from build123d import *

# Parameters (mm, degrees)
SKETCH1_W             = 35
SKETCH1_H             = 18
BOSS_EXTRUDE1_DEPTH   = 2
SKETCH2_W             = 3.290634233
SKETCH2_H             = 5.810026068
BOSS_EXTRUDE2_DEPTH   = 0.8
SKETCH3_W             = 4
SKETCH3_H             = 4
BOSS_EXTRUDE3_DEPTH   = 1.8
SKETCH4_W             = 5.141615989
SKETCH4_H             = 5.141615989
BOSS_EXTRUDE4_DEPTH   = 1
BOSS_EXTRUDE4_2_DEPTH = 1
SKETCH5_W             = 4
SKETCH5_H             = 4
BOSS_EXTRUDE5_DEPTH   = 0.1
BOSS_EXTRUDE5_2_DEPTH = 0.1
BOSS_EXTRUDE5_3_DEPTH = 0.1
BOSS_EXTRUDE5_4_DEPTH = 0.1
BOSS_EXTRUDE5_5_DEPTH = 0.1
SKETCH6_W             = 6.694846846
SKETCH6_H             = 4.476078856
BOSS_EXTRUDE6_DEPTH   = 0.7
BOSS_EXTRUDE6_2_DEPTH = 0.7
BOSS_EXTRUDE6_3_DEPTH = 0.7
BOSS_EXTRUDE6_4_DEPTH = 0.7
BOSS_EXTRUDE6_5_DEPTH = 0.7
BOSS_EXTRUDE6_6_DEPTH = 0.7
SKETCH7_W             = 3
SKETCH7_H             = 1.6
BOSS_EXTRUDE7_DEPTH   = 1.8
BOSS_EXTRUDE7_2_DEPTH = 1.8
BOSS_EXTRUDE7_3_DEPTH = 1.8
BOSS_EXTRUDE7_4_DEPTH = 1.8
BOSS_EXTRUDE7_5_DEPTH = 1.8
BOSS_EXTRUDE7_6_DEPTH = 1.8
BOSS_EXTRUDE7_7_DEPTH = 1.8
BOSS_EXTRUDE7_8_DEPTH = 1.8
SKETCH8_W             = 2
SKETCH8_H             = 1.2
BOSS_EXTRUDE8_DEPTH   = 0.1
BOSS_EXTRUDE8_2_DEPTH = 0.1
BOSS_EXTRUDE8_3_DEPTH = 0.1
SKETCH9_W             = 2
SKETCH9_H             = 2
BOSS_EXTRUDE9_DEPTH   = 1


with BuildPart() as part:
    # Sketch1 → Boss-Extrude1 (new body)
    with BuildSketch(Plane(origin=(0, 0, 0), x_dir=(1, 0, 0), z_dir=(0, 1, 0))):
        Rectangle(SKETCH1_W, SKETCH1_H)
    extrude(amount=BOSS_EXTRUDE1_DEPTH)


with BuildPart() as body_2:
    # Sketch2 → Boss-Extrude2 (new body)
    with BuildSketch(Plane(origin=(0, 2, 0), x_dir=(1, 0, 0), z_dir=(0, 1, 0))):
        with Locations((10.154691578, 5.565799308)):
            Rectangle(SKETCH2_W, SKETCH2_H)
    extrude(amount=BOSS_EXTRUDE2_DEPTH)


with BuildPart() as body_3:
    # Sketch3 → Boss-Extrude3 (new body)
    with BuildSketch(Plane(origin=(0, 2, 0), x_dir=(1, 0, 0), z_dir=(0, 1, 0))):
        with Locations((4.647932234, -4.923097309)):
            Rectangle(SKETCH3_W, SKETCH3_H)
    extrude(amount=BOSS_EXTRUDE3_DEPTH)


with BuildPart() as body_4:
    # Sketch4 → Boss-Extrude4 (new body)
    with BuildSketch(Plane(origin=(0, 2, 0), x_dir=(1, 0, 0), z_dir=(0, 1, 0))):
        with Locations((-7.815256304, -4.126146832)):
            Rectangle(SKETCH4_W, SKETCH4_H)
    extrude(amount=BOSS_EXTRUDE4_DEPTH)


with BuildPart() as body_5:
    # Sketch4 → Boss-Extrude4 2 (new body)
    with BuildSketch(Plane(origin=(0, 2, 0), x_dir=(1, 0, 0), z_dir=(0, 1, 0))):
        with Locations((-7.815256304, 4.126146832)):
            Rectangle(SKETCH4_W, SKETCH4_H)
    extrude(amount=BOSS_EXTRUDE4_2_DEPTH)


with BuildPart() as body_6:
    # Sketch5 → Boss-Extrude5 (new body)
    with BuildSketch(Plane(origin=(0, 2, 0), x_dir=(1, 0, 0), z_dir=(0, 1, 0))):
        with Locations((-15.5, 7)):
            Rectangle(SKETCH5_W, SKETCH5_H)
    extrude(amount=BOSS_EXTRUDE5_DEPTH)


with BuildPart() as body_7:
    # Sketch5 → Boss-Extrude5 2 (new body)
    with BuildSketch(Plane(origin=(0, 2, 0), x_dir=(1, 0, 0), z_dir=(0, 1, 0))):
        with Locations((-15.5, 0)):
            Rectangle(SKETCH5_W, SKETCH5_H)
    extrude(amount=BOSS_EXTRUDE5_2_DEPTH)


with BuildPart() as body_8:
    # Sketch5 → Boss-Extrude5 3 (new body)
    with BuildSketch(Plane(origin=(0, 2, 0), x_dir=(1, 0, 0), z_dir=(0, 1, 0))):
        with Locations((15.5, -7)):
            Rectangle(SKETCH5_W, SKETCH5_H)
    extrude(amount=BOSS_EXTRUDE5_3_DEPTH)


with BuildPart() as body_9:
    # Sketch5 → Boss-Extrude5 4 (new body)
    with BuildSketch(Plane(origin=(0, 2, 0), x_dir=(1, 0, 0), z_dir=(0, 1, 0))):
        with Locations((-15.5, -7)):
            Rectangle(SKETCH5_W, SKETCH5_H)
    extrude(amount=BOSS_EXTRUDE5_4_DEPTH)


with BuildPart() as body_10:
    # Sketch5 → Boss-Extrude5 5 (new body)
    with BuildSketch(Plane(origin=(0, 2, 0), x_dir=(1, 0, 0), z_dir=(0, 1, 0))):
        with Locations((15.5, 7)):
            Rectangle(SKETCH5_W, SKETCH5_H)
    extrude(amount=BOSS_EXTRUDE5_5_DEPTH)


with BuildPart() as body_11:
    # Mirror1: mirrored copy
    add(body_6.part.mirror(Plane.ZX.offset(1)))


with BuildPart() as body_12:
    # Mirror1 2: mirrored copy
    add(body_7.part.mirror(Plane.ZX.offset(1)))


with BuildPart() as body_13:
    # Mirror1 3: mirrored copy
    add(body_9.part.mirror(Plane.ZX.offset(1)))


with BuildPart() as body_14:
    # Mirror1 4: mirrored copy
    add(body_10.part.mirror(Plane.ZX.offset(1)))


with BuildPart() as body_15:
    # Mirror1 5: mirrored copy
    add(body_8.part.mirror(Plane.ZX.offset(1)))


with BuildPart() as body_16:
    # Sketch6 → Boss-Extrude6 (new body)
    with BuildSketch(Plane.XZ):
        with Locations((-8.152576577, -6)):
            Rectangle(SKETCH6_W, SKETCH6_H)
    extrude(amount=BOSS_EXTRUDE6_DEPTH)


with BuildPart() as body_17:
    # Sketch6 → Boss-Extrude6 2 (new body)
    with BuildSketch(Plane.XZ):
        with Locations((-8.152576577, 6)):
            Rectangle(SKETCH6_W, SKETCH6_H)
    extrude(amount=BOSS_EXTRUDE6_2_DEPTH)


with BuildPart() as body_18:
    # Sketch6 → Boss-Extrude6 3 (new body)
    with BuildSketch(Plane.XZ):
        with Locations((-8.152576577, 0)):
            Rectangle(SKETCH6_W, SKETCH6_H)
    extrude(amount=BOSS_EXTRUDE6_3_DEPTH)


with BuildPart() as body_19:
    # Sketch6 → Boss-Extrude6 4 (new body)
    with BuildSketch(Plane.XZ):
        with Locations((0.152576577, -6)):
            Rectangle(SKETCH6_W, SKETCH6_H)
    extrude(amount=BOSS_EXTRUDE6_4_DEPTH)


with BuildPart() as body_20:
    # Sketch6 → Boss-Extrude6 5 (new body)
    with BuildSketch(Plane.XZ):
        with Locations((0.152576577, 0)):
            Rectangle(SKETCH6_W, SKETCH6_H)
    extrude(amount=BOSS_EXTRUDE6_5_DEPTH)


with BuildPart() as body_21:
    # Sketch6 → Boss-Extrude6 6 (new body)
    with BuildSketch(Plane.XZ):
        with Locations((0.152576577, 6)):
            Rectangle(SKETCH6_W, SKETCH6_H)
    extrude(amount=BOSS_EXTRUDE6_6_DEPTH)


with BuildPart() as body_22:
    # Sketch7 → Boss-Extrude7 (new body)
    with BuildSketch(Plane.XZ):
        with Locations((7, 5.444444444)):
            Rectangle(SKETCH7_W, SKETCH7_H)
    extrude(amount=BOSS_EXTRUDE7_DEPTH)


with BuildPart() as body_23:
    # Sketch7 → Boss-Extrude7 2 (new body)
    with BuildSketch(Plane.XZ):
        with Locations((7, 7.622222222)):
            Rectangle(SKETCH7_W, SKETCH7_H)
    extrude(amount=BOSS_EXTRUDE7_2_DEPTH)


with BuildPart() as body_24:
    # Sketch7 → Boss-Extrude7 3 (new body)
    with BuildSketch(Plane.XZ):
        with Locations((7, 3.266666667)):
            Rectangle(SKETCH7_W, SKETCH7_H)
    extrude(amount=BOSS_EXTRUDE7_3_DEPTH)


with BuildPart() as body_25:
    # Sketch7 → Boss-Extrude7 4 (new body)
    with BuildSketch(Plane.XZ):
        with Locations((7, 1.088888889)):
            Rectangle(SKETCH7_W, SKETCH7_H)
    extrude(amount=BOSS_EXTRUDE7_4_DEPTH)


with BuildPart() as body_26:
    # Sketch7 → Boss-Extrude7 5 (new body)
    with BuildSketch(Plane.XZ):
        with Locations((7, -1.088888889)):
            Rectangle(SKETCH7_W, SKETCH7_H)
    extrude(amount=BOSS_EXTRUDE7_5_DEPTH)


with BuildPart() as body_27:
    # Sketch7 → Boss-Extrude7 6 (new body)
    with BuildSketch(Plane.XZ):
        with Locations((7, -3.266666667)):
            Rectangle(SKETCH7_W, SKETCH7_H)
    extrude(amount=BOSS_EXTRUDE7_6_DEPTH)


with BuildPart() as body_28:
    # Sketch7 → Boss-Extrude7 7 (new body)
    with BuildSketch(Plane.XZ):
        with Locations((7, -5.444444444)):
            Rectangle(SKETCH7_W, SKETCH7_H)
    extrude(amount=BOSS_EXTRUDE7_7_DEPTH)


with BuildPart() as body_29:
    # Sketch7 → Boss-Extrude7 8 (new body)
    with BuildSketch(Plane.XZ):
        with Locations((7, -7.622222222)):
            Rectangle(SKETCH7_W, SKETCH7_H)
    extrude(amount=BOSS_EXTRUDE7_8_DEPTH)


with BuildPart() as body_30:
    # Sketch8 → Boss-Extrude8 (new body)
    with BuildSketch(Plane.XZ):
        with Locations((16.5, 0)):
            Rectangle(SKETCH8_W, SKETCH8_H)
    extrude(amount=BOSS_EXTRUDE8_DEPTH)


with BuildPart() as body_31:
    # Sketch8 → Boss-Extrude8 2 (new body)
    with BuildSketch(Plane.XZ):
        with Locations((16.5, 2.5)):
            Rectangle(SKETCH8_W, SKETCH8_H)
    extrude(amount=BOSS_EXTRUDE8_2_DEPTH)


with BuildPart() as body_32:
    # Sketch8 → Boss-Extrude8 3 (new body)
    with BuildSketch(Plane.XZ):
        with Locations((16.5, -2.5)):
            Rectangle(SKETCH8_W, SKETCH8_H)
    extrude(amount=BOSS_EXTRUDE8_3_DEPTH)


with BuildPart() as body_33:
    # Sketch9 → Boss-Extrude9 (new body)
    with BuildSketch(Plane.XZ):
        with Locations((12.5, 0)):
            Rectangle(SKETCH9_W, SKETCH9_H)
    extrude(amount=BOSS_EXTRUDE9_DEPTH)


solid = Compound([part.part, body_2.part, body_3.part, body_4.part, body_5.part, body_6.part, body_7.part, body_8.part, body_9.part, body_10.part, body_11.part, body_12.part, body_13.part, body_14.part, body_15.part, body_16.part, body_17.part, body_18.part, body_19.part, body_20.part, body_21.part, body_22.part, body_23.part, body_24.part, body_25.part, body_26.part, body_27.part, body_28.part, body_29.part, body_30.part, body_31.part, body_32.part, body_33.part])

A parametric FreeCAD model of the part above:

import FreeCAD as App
import Part
import Sketcher

V = App.Vector

doc = App.newDocument("Part")
body = doc.addObject("PartDesign::Body", "Body")

sketch1 = body.newObject("Sketcher::SketchObject", "Sketch")
sketch1.AttachmentSupport = (doc.getObject("XZ_Plane"), [""])
sketch1.MapMode = "FlatFace"
sketch1.addGeometry(Part.LineSegment(V(-17.5, -9, 0), V(-17.5, 9, 0)), False)
sketch1.addGeometry(Part.LineSegment(V(-17.5, 9, 0), V(17.5, 9, 0)), False)
sketch1.addGeometry(Part.LineSegment(V(17.5, 9, 0), V(17.5, -9, 0)), False)
sketch1.addGeometry(Part.LineSegment(V(17.5, -9, 0), V(-17.5, -9, 0)), False)
sketch1.addConstraint(Sketcher.Constraint("Coincident", 0, 2, 1, 1))
sketch1.addConstraint(Sketcher.Constraint("Coincident", 1, 2, 2, 1))
sketch1.addConstraint(Sketcher.Constraint("Coincident", 2, 2, 3, 1))
sketch1.addConstraint(Sketcher.Constraint("Coincident", 3, 2, 0, 1))
sketch1.addConstraint(Sketcher.Constraint("Vertical", 0))
sketch1.addConstraint(Sketcher.Constraint("Horizontal", 1))
sketch1.addConstraint(Sketcher.Constraint("Vertical", 2))
sketch1.addConstraint(Sketcher.Constraint("Horizontal", 3))
sketch1.addConstraint(Sketcher.Constraint("Symmetric", 0, 2, 2, 2, -1, 1))
sketch1.addConstraint(Sketcher.Constraint("DistanceX", 1, 1, 1, 2, 35.0))
sketch1.addConstraint(Sketcher.Constraint("DistanceY", 0, 1, 0, 2, 18.0))
pad1 = body.newObject("PartDesign::Pad", "Pad")
pad1.Profile = sketch1
pad1.Length = 2
pad1.Reversed = True
body2 = doc.addObject("PartDesign::Body", "Body001")

sketch2 = body2.newObject("Sketcher::SketchObject", "Sketch001")
sketch2.AttachmentSupport = (doc.getObject("XZ_Plane001"), [""])
sketch2.MapMode = "FlatFace"
sketch2.AttachmentOffset = App.Placement(V(0, 0, -2), App.Rotation())
sketch2.addGeometry(Part.LineSegment(V(8.509374, -8.470812, 0), V(8.509374, -2.660786, 0)), False)
sketch2.addGeometry(Part.LineSegment(V(8.509374, -2.660786, 0), V(11.800009, -2.660786, 0)), False)
sketch2.addGeometry(Part.LineSegment(V(11.800009, -2.660786, 0), V(11.800009, -8.470812, 0)), False)
sketch2.addGeometry(Part.LineSegment(V(11.800009, -8.470812, 0), V(8.509374, -8.470812, 0)), False)
sketch2.addConstraint(Sketcher.Constraint("Coincident", 0, 2, 1, 1))
sketch2.addConstraint(Sketcher.Constraint("Coincident", 1, 2, 2, 1))
sketch2.addConstraint(Sketcher.Constraint("Coincident", 2, 2, 3, 1))
sketch2.addConstraint(Sketcher.Constraint("Coincident", 3, 2, 0, 1))
sketch2.addConstraint(Sketcher.Constraint("Vertical", 0))
sketch2.addConstraint(Sketcher.Constraint("Horizontal", 1))
sketch2.addConstraint(Sketcher.Constraint("Vertical", 2))
sketch2.addConstraint(Sketcher.Constraint("Horizontal", 3))
sketch2.addConstraint(Sketcher.Constraint("DistanceX", 1, 1, 1, 2, 3.290634))
sketch2.addConstraint(Sketcher.Constraint("DistanceY", 0, 1, 0, 2, 5.810026))
sketch2.addConstraint(Sketcher.Constraint("DistanceX", -1, 1, 1, 2, 11.800009))
sketch2.addConstraint(Sketcher.Constraint("DistanceY", 0, 2, -1, 1, 2.660786))
pad2 = body2.newObject("PartDesign::Pad", "Pad001")
pad2.Profile = sketch2
pad2.Length = 0.8
pad2.Reversed = True
body3 = doc.addObject("PartDesign::Body", "Body002")

sketch3 = body3.newObject("Sketcher::SketchObject", "Sketch002")
sketch3.AttachmentSupport = (doc.getObject("XZ_Plane002"), [""])
sketch3.MapMode = "FlatFace"
sketch3.AttachmentOffset = App.Placement(V(0, 0, -2), App.Rotation())
sketch3.addGeometry(Part.LineSegment(V(2.647932, 2.923097, 0), V(2.647932, 6.923097, 0)), False)
sketch3.addGeometry(Part.LineSegment(V(2.647932, 6.923097, 0), V(6.647932, 6.923097, 0)), False)
sketch3.addGeometry(Part.LineSegment(V(6.647932, 6.923097, 0), V(6.647932, 2.923097, 0)), False)
sketch3.addGeometry(Part.LineSegment(V(6.647932, 2.923097, 0), V(2.647932, 2.923097, 0)), False)
sketch3.addConstraint(Sketcher.Constraint("Coincident", 0, 2, 1, 1))
sketch3.addConstraint(Sketcher.Constraint("Coincident", 1, 2, 2, 1))
sketch3.addConstraint(Sketcher.Constraint("Coincident", 2, 2, 3, 1))
sketch3.addConstraint(Sketcher.Constraint("Coincident", 3, 2, 0, 1))
sketch3.addConstraint(Sketcher.Constraint("Vertical", 0))
sketch3.addConstraint(Sketcher.Constraint("Horizontal", 1))
sketch3.addConstraint(Sketcher.Constraint("Vertical", 2))
sketch3.addConstraint(Sketcher.Constraint("Horizontal", 3))
sketch3.addConstraint(Sketcher.Constraint("Equal", 3, 0))
sketch3.addConstraint(Sketcher.Constraint("DistanceX", 1, 1, 1, 2, 4.0))
sketch3.addConstraint(Sketcher.Constraint("DistanceX", -1, 1, 0, 2, 2.647932))
sketch3.addConstraint(Sketcher.Constraint("DistanceY", -1, 1, 0, 2, 6.923097))
pad3 = body3.newObject("PartDesign::Pad", "Pad002")
pad3.Profile = sketch3
pad3.Length = 1.8
pad3.Reversed = True
body4 = doc.addObject("PartDesign::Body", "Body003")

sketch4 = body4.newObject("Sketcher::SketchObject", "Sketch003")
sketch4.AttachmentSupport = (doc.getObject("XZ_Plane003"), [""])
sketch4.MapMode = "FlatFace"
sketch4.AttachmentOffset = App.Placement(V(0, 0, -2), App.Rotation())
sketch4.addGeometry(Part.LineSegment(V(-10.386064, 1.555339, 0), V(-10.386064, 6.696955, 0)), False)
sketch4.addGeometry(Part.LineSegment(V(-10.386064, 6.696955, 0), V(-5.244448, 6.696955, 0)), False)
sketch4.addGeometry(Part.LineSegment(V(-5.244448, 6.696955, 0), V(-5.244448, 1.555339, 0)), False)
sketch4.addGeometry(Part.LineSegment(V(-5.244448, 1.555339, 0), V(-10.386064, 1.555339, 0)), False)
sketch4.addConstraint(Sketcher.Constraint("Coincident", 0, 2, 1, 1))
sketch4.addConstraint(Sketcher.Constraint("Coincident", 1, 2, 2, 1))
sketch4.addConstraint(Sketcher.Constraint("Coincident", 2, 2, 3, 1))
sketch4.addConstraint(Sketcher.Constraint("Coincident", 3, 2, 0, 1))
sketch4.addConstraint(Sketcher.Constraint("Vertical", 0))
sketch4.addConstraint(Sketcher.Constraint("Horizontal", 1))
sketch4.addConstraint(Sketcher.Constraint("Vertical", 2))
sketch4.addConstraint(Sketcher.Constraint("Horizontal", 3))
sketch4.addConstraint(Sketcher.Constraint("Equal", 3, 0))
sketch4.addConstraint(Sketcher.Constraint("DistanceX", 1, 1, 1, 2, 5.141616))
sketch4.addConstraint(Sketcher.Constraint("DistanceX", 1, 2, -1, 1, 5.244448))
sketch4.addConstraint(Sketcher.Constraint("DistanceY", -1, 1, 2, 2, 1.555339))
pad4 = body4.newObject("PartDesign::Pad", "Pad003")
pad4.Profile = sketch4
pad4.Length = 1
pad4.Reversed = True
body5 = doc.addObject("PartDesign::Body", "Body004")

sketch5 = body5.newObject("Sketcher::SketchObject", "Sketch004")
sketch5.AttachmentSupport = (doc.getObject("XZ_Plane004"), [""])
sketch5.MapMode = "FlatFace"
sketch5.AttachmentOffset = App.Placement(V(0, 0, -2), App.Rotation())
sketch5.addGeometry(Part.LineSegment(V(-10.386064, -6.696955, 0), V(-10.386064, -1.555339, 0)), False)
sketch5.addGeometry(Part.LineSegment(V(-10.386064, -1.555339, 0), V(-5.244448, -1.555339, 0)), False)
sketch5.addGeometry(Part.LineSegment(V(-5.244448, -1.555339, 0), V(-5.244448, -6.696955, 0)), False)
sketch5.addGeometry(Part.LineSegment(V(-5.244448, -6.696955, 0), V(-10.386064, -6.696955, 0)), False)
sketch5.addConstraint(Sketcher.Constraint("Coincident", 0, 2, 1, 1))
sketch5.addConstraint(Sketcher.Constraint("Coincident", 1, 2, 2, 1))
sketch5.addConstraint(Sketcher.Constraint("Coincident", 2, 2, 3, 1))
sketch5.addConstraint(Sketcher.Constraint("Coincident", 3, 2, 0, 1))
sketch5.addConstraint(Sketcher.Constraint("Vertical", 0))
sketch5.addConstraint(Sketcher.Constraint("Horizontal", 1))
sketch5.addConstraint(Sketcher.Constraint("Vertical", 2))
sketch5.addConstraint(Sketcher.Constraint("Horizontal", 3))
sketch5.addConstraint(Sketcher.Constraint("Equal", 3, 0))
sketch5.addConstraint(Sketcher.Constraint("DistanceX", 1, 1, 1, 2, 5.141616))
sketch5.addConstraint(Sketcher.Constraint("DistanceY", 0, 2, -1, 1, 1.555339))
sketch5.addConstraint(Sketcher.Constraint("DistanceX", 1, 2, -1, 1, 5.244448))
pad5 = body5.newObject("PartDesign::Pad", "Pad004")
pad5.Profile = sketch5
pad5.Length = 1
pad5.Reversed = True
body6 = doc.addObject("PartDesign::Body", "Body005")

sketch6 = body6.newObject("Sketcher::SketchObject", "Sketch005")
sketch6.AttachmentSupport = (doc.getObject("XZ_Plane005"), [""])
sketch6.MapMode = "FlatFace"
sketch6.AttachmentOffset = App.Placement(V(0, 0, -2), App.Rotation())
sketch6.addGeometry(Part.LineSegment(V(-17.5, -9, 0), V(-17.5, -5, 0)), False)
sketch6.addGeometry(Part.LineSegment(V(-17.5, -5, 0), V(-13.5, -5, 0)), False)
sketch6.addGeometry(Part.LineSegment(V(-13.5, -5, 0), V(-13.5, -9, 0)), False)
sketch6.addGeometry(Part.LineSegment(V(-13.5, -9, 0), V(-17.5, -9, 0)), False)
sketch6.addConstraint(Sketcher.Constraint("Coincident", 0, 2, 1, 1))
sketch6.addConstraint(Sketcher.Constraint("Coincident", 1, 2, 2, 1))
sketch6.addConstraint(Sketcher.Constraint("Coincident", 2, 2, 3, 1))
sketch6.addConstraint(Sketcher.Constraint("Coincident", 3, 2, 0, 1))
sketch6.addConstraint(Sketcher.Constraint("Vertical", 0))
sketch6.addConstraint(Sketcher.Constraint("Horizontal", 1))
sketch6.addConstraint(Sketcher.Constraint("Vertical", 2))
sketch6.addConstraint(Sketcher.Constraint("Horizontal", 3))
sketch6.addConstraint(Sketcher.Constraint("Equal", 3, 0))
sketch6.addConstraint(Sketcher.Constraint("DistanceX", 1, 1, 1, 2, 4.0))
sketch6.addConstraint(Sketcher.Constraint("DistanceY", 0, 2, -1, 1, 5.0))
sketch6.addConstraint(Sketcher.Constraint("DistanceX", 0, 2, -1, 1, 17.5))
pad6 = body6.newObject("PartDesign::Pad", "Pad005")
pad6.Profile = sketch6
pad6.Length = 0.1
pad6.Reversed = True
body7 = doc.addObject("PartDesign::Body", "Body006")

sketch7 = body7.newObject("Sketcher::SketchObject", "Sketch006")
sketch7.AttachmentSupport = (doc.getObject("XZ_Plane006"), [""])
sketch7.MapMode = "FlatFace"
sketch7.AttachmentOffset = App.Placement(V(0, 0, -2), App.Rotation())
sketch7.addGeometry(Part.LineSegment(V(-17.5, -2, 0), V(-17.5, 2, 0)), False)
sketch7.addGeometry(Part.LineSegment(V(-17.5, 2, 0), V(-13.5, 2, 0)), False)
sketch7.addGeometry(Part.LineSegment(V(-13.5, 2, 0), V(-13.5, -2, 0)), False)
sketch7.addGeometry(Part.LineSegment(V(-13.5, -2, 0), V(-17.5, -2, 0)), False)
sketch7.addConstraint(Sketcher.Constraint("Coincident", 0, 2, 1, 1))
sketch7.addConstraint(Sketcher.Constraint("Coincident", 1, 2, 2, 1))
sketch7.addConstraint(Sketcher.Constraint("Coincident", 2, 2, 3, 1))
sketch7.addConstraint(Sketcher.Constraint("Coincident", 3, 2, 0, 1))
sketch7.addConstraint(Sketcher.Constraint("Vertical", 0))
sketch7.addConstraint(Sketcher.Constraint("Horizontal", 1))
sketch7.addConstraint(Sketcher.Constraint("Vertical", 2))
sketch7.addConstraint(Sketcher.Constraint("Horizontal", 3))
sketch7.addConstraint(Sketcher.Constraint("Equal", 3, 0))
sketch7.addConstraint(Sketcher.Constraint("DistanceX", 1, 1, 1, 2, 4.0))
sketch7.addConstraint(Sketcher.Constraint("DistanceY", -1, 1, 0, 2, 2.0))
sketch7.addConstraint(Sketcher.Constraint("DistanceX", 0, 2, -1, 1, 17.5))
pad7 = body7.newObject("PartDesign::Pad", "Pad006")
pad7.Profile = sketch7
pad7.Length = 0.1
pad7.Reversed = True
body8 = doc.addObject("PartDesign::Body", "Body007")

sketch8 = body8.newObject("Sketcher::SketchObject", "Sketch007")
sketch8.AttachmentSupport = (doc.getObject("XZ_Plane007"), [""])
sketch8.MapMode = "FlatFace"
sketch8.AttachmentOffset = App.Placement(V(0, 0, -2), App.Rotation())
sketch8.addGeometry(Part.LineSegment(V(13.5, 5, 0), V(13.5, 9, 0)), False)
sketch8.addGeometry(Part.LineSegment(V(13.5, 9, 0), V(17.5, 9, 0)), False)
sketch8.addGeometry(Part.LineSegment(V(17.5, 9, 0), V(17.5, 5, 0)), False)
sketch8.addGeometry(Part.LineSegment(V(17.5, 5, 0), V(13.5, 5, 0)), False)
sketch8.addConstraint(Sketcher.Constraint("Coincident", 0, 2, 1, 1))
sketch8.addConstraint(Sketcher.Constraint("Coincident", 1, 2, 2, 1))
sketch8.addConstraint(Sketcher.Constraint("Coincident", 2, 2, 3, 1))
sketch8.addConstraint(Sketcher.Constraint("Coincident", 3, 2, 0, 1))
sketch8.addConstraint(Sketcher.Constraint("Vertical", 0))
sketch8.addConstraint(Sketcher.Constraint("Horizontal", 1))
sketch8.addConstraint(Sketcher.Constraint("Vertical", 2))
sketch8.addConstraint(Sketcher.Constraint("Horizontal", 3))
sketch8.addConstraint(Sketcher.Constraint("Equal", 3, 0))
sketch8.addConstraint(Sketcher.Constraint("DistanceX", 1, 1, 1, 2, 4.0))
sketch8.addConstraint(Sketcher.Constraint("DistanceY", -1, 1, 0, 2, 9.0))
sketch8.addConstraint(Sketcher.Constraint("DistanceX", -1, 1, 0, 2, 13.5))
pad8 = body8.newObject("PartDesign::Pad", "Pad007")
pad8.Profile = sketch8
pad8.Length = 0.1
pad8.Reversed = True
body9 = doc.addObject("PartDesign::Body", "Body008")

sketch9 = body9.newObject("Sketcher::SketchObject", "Sketch008")
sketch9.AttachmentSupport = (doc.getObject("XZ_Plane008"), [""])
sketch9.MapMode = "FlatFace"
sketch9.AttachmentOffset = App.Placement(V(0, 0, -2), App.Rotation())
sketch9.addGeometry(Part.LineSegment(V(-17.5, 5, 0), V(-17.5, 9, 0)), False)
sketch9.addGeometry(Part.LineSegment(V(-17.5, 9, 0), V(-13.5, 9, 0)), False)
sketch9.addGeometry(Part.LineSegment(V(-13.5, 9, 0), V(-13.5, 5, 0)), False)
sketch9.addGeometry(Part.LineSegment(V(-13.5, 5, 0), V(-17.5, 5, 0)), False)
sketch9.addConstraint(Sketcher.Constraint("Coincident", 0, 2, 1, 1))
sketch9.addConstraint(Sketcher.Constraint("Coincident", 1, 2, 2, 1))
sketch9.addConstraint(Sketcher.Constraint("Coincident", 2, 2, 3, 1))
sketch9.addConstraint(Sketcher.Constraint("Coincident", 3, 2, 0, 1))
sketch9.addConstraint(Sketcher.Constraint("Vertical", 0))
sketch9.addConstraint(Sketcher.Constraint("Horizontal", 1))
sketch9.addConstraint(Sketcher.Constraint("Vertical", 2))
sketch9.addConstraint(Sketcher.Constraint("Horizontal", 3))
sketch9.addConstraint(Sketcher.Constraint("Equal", 3, 0))
sketch9.addConstraint(Sketcher.Constraint("DistanceX", 1, 1, 1, 2, 4.0))
sketch9.addConstraint(Sketcher.Constraint("DistanceY", -1, 1, 0, 2, 9.0))
sketch9.addConstraint(Sketcher.Constraint("DistanceX", 0, 2, -1, 1, 17.5))
pad9 = body9.newObject("PartDesign::Pad", "Pad008")
pad9.Profile = sketch9
pad9.Length = 0.1
pad9.Reversed = True
body10 = doc.addObject("PartDesign::Body", "Body009")

sketch10 = body10.newObject("Sketcher::SketchObject", "Sketch009")
sketch10.AttachmentSupport = (doc.getObject("XZ_Plane009"), [""])
sketch10.MapMode = "FlatFace"
sketch10.AttachmentOffset = App.Placement(V(0, 0, -2), App.Rotation())
sketch10.addGeometry(Part.LineSegment(V(13.5, -9, 0), V(13.5, -5, 0)), False)
sketch10.addGeometry(Part.LineSegment(V(13.5, -5, 0), V(17.5, -5, 0)), False)
sketch10.addGeometry(Part.LineSegment(V(17.5, -5, 0), V(17.5, -9, 0)), False)
sketch10.addGeometry(Part.LineSegment(V(17.5, -9, 0), V(13.5, -9, 0)), False)
sketch10.addConstraint(Sketcher.Constraint("Coincident", 0, 2, 1, 1))
sketch10.addConstraint(Sketcher.Constraint("Coincident", 1, 2, 2, 1))
sketch10.addConstraint(Sketcher.Constraint("Coincident", 2, 2, 3, 1))
sketch10.addConstraint(Sketcher.Constraint("Coincident", 3, 2, 0, 1))
sketch10.addConstraint(Sketcher.Constraint("Vertical", 0))
sketch10.addConstraint(Sketcher.Constraint("Horizontal", 1))
sketch10.addConstraint(Sketcher.Constraint("Vertical", 2))
sketch10.addConstraint(Sketcher.Constraint("Horizontal", 3))
sketch10.addConstraint(Sketcher.Constraint("Equal", 3, 0))
sketch10.addConstraint(Sketcher.Constraint("DistanceX", 1, 1, 1, 2, 4.0))
sketch10.addConstraint(Sketcher.Constraint("DistanceY", 0, 2, -1, 1, 5.0))
sketch10.addConstraint(Sketcher.Constraint("DistanceX", -1, 1, 0, 2, 13.5))
pad10 = body10.newObject("PartDesign::Pad", "Pad009")
pad10.Profile = sketch10
pad10.Length = 0.1
pad10.Reversed = True
body11 = doc.addObject("PartDesign::Body", "Body010")
doc.recompute()

mirroring = doc.addObject("Part::Mirroring", "Mirroring")
mirroring.Source = body6
mirroring.Base = V(0, 1, 0)
mirroring.Normal = V(0, 1, 0)
body11.BaseFeature = mirroring
doc.recompute()
body12 = doc.addObject("PartDesign::Body", "Body011")
doc.recompute()

mirroring2 = doc.addObject("Part::Mirroring", "Mirroring001")
mirroring2.Source = body7
mirroring2.Base = V(0, 1, 0)
mirroring2.Normal = V(0, 1, 0)
body12.BaseFeature = mirroring2
doc.recompute()
body13 = doc.addObject("PartDesign::Body", "Body012")
doc.recompute()

mirroring3 = doc.addObject("Part::Mirroring", "Mirroring002")
mirroring3.Source = body9
mirroring3.Base = V(0, 1, 0)
mirroring3.Normal = V(0, 1, 0)
body13.BaseFeature = mirroring3
doc.recompute()
body14 = doc.addObject("PartDesign::Body", "Body013")
doc.recompute()

mirroring4 = doc.addObject("Part::Mirroring", "Mirroring003")
mirroring4.Source = body10
mirroring4.Base = V(0, 1, 0)
mirroring4.Normal = V(0, 1, 0)
body14.BaseFeature = mirroring4
doc.recompute()
body15 = doc.addObject("PartDesign::Body", "Body014")
doc.recompute()

mirroring5 = doc.addObject("Part::Mirroring", "Mirroring004")
mirroring5.Source = body8
mirroring5.Base = V(0, 1, 0)
mirroring5.Normal = V(0, 1, 0)
body15.BaseFeature = mirroring5
doc.recompute()
body16 = doc.addObject("PartDesign::Body", "Body015")

sketch11 = body16.newObject("Sketcher::SketchObject", "Sketch010")
sketch11.AttachmentSupport = (doc.getObject("XZ_Plane015"), [""])
sketch11.MapMode = "FlatFace"
sketch11.addGeometry(Part.LineSegment(V(-11.5, -3.761961, 0), V(-11.5, -8.238039, 0)), False)
sketch11.addGeometry(Part.LineSegment(V(-11.5, -8.238039, 0), V(-4.805153, -8.238039, 0)), False)
sketch11.addGeometry(Part.LineSegment(V(-4.805153, -8.238039, 0), V(-4.805153, -3.761961, 0)), False)
sketch11.addGeometry(Part.LineSegment(V(-4.805153, -3.761961, 0), V(-11.5, -3.761961, 0)), False)
sketch11.addConstraint(Sketcher.Constraint("Coincident", 0, 2, 1, 1))
sketch11.addConstraint(Sketcher.Constraint("Coincident", 1, 2, 2, 1))
sketch11.addConstraint(Sketcher.Constraint("Coincident", 2, 2, 3, 1))
sketch11.addConstraint(Sketcher.Constraint("Coincident", 3, 2, 0, 1))
sketch11.addConstraint(Sketcher.Constraint("Vertical", 0))
sketch11.addConstraint(Sketcher.Constraint("Horizontal", 1))
sketch11.addConstraint(Sketcher.Constraint("Vertical", 2))
sketch11.addConstraint(Sketcher.Constraint("Horizontal", 3))
sketch11.addConstraint(Sketcher.Constraint("DistanceX", 0, 2, -1, 1, 11.5))
sketch11.addConstraint(Sketcher.Constraint("DistanceY", 0, 2, 0, 1, 4.476079))
sketch11.addConstraint(Sketcher.Constraint("DistanceX", 1, 1, 1, 2, 6.694847))
sketch11.addConstraint(Sketcher.Constraint("DistanceY", 0, 2, -1, 1, 8.238039))
pad11 = body16.newObject("PartDesign::Pad", "Pad010")
pad11.Profile = sketch11
pad11.Length = 0.7
body17 = doc.addObject("PartDesign::Body", "Body016")

sketch12 = body17.newObject("Sketcher::SketchObject", "Sketch011")
sketch12.AttachmentSupport = (doc.getObject("XZ_Plane016"), [""])
sketch12.MapMode = "FlatFace"
sketch12.addGeometry(Part.LineSegment(V(-11.5, 8.238039, 0), V(-11.5, 3.761961, 0)), False)
sketch12.addGeometry(Part.LineSegment(V(-11.5, 3.761961, 0), V(-4.805153, 3.761961, 0)), False)
sketch12.addGeometry(Part.LineSegment(V(-4.805153, 3.761961, 0), V(-4.805153, 8.238039, 0)), False)
sketch12.addGeometry(Part.LineSegment(V(-4.805153, 8.238039, 0), V(-11.5, 8.238039, 0)), False)
sketch12.addConstraint(Sketcher.Constraint("Coincident", 0, 2, 1, 1))
sketch12.addConstraint(Sketcher.Constraint("Coincident", 1, 2, 2, 1))
sketch12.addConstraint(Sketcher.Constraint("Coincident", 2, 2, 3, 1))
sketch12.addConstraint(Sketcher.Constraint("Coincident", 3, 2, 0, 1))
sketch12.addConstraint(Sketcher.Constraint("Vertical", 0))
sketch12.addConstraint(Sketcher.Constraint("Horizontal", 1))
sketch12.addConstraint(Sketcher.Constraint("Vertical", 2))
sketch12.addConstraint(Sketcher.Constraint("Horizontal", 3))
sketch12.addConstraint(Sketcher.Constraint("DistanceX", 0, 2, -1, 1, 11.5))
sketch12.addConstraint(Sketcher.Constraint("DistanceY", 0, 2, 0, 1, 4.476079))
sketch12.addConstraint(Sketcher.Constraint("DistanceX", 1, 1, 1, 2, 6.694847))
sketch12.addConstraint(Sketcher.Constraint("DistanceY", -1, 1, 0, 2, 3.761961))
pad12 = body17.newObject("PartDesign::Pad", "Pad011")
pad12.Profile = sketch12
pad12.Length = 0.7
body18 = doc.addObject("PartDesign::Body", "Body017")

sketch13 = body18.newObject("Sketcher::SketchObject", "Sketch012")
sketch13.AttachmentSupport = (doc.getObject("XZ_Plane017"), [""])
sketch13.MapMode = "FlatFace"
sketch13.addGeometry(Part.LineSegment(V(-11.5, 2.238039, 0), V(-11.5, -2.238039, 0)), False)
sketch13.addGeometry(Part.LineSegment(V(-11.5, -2.238039, 0), V(-4.805153, -2.238039, 0)), False)
sketch13.addGeometry(Part.LineSegment(V(-4.805153, -2.238039, 0), V(-4.805153, 2.238039, 0)), False)
sketch13.addGeometry(Part.LineSegment(V(-4.805153, 2.238039, 0), V(-11.5, 2.238039, 0)), False)
sketch13.addConstraint(Sketcher.Constraint("Coincident", 0, 2, 1, 1))
sketch13.addConstraint(Sketcher.Constraint("Coincident", 1, 2, 2, 1))
sketch13.addConstraint(Sketcher.Constraint("Coincident", 2, 2, 3, 1))
sketch13.addConstraint(Sketcher.Constraint("Coincident", 3, 2, 0, 1))
sketch13.addConstraint(Sketcher.Constraint("Vertical", 0))
sketch13.addConstraint(Sketcher.Constraint("Horizontal", 1))
sketch13.addConstraint(Sketcher.Constraint("Vertical", 2))
sketch13.addConstraint(Sketcher.Constraint("Horizontal", 3))
sketch13.addConstraint(Sketcher.Constraint("DistanceX", 0, 2, -1, 1, 11.5))
sketch13.addConstraint(Sketcher.Constraint("DistanceY", 0, 2, 0, 1, 4.476079))
sketch13.addConstraint(Sketcher.Constraint("DistanceX", 1, 1, 1, 2, 6.694847))
sketch13.addConstraint(Sketcher.Constraint("DistanceY", 0, 2, -1, 1, 2.238039))
pad13 = body18.newObject("PartDesign::Pad", "Pad012")
pad13.Profile = sketch13
pad13.Length = 0.7
body19 = doc.addObject("PartDesign::Body", "Body018")

sketch14 = body19.newObject("Sketcher::SketchObject", "Sketch013")
sketch14.AttachmentSupport = (doc.getObject("XZ_Plane018"), [""])
sketch14.MapMode = "FlatFace"
sketch14.addGeometry(Part.LineSegment(V(-3.194847, -3.761961, 0), V(-3.194847, -8.238039, 0)), False)
sketch14.addGeometry(Part.LineSegment(V(-3.194847, -8.238039, 0), V(3.5, -8.238039, 0)), False)
sketch14.addGeometry(Part.LineSegment(V(3.5, -8.238039, 0), V(3.5, -3.761961, 0)), False)
sketch14.addGeometry(Part.LineSegment(V(3.5, -3.761961, 0), V(-3.194847, -3.761961, 0)), False)
sketch14.addConstraint(Sketcher.Constraint("Coincident", 0, 2, 1, 1))
sketch14.addConstraint(Sketcher.Constraint("Coincident", 1, 2, 2, 1))
sketch14.addConstraint(Sketcher.Constraint("Coincident", 2, 2, 3, 1))
sketch14.addConstraint(Sketcher.Constraint("Coincident", 3, 2, 0, 1))
sketch14.addConstraint(Sketcher.Constraint("Vertical", 0))
sketch14.addConstraint(Sketcher.Constraint("Horizontal", 1))
sketch14.addConstraint(Sketcher.Constraint("Vertical", 2))
sketch14.addConstraint(Sketcher.Constraint("Horizontal", 3))
sketch14.addConstraint(Sketcher.Constraint("DistanceX", -1, 1, 1, 2, 3.5))
sketch14.addConstraint(Sketcher.Constraint("DistanceY", 0, 2, 0, 1, 4.476079))
sketch14.addConstraint(Sketcher.Constraint("DistanceX", 1, 1, 1, 2, 6.694847))
sketch14.addConstraint(Sketcher.Constraint("DistanceY", 0, 2, -1, 1, 8.238039))
pad14 = body19.newObject("PartDesign::Pad", "Pad013")
pad14.Profile = sketch14
pad14.Length = 0.7
body20 = doc.addObject("PartDesign::Body", "Body019")

sketch15 = body20.newObject("Sketcher::SketchObject", "Sketch014")
sketch15.AttachmentSupport = (doc.getObject("XZ_Plane019"), [""])
sketch15.MapMode = "FlatFace"
sketch15.addGeometry(Part.LineSegment(V(-3.194847, 2.238039, 0), V(-3.194847, -2.238039, 0)), False)
sketch15.addGeometry(Part.LineSegment(V(-3.194847, -2.238039, 0), V(3.5, -2.238039, 0)), False)
sketch15.addGeometry(Part.LineSegment(V(3.5, -2.238039, 0), V(3.5, 2.238039, 0)), False)
sketch15.addGeometry(Part.LineSegment(V(3.5, 2.238039, 0), V(-3.194847, 2.238039, 0)), False)
sketch15.addConstraint(Sketcher.Constraint("Coincident", 0, 2, 1, 1))
sketch15.addConstraint(Sketcher.Constraint("Coincident", 1, 2, 2, 1))
sketch15.addConstraint(Sketcher.Constraint("Coincident", 2, 2, 3, 1))
sketch15.addConstraint(Sketcher.Constraint("Coincident", 3, 2, 0, 1))
sketch15.addConstraint(Sketcher.Constraint("Vertical", 0))
sketch15.addConstraint(Sketcher.Constraint("Horizontal", 1))
sketch15.addConstraint(Sketcher.Constraint("Vertical", 2))
sketch15.addConstraint(Sketcher.Constraint("Horizontal", 3))
sketch15.addConstraint(Sketcher.Constraint("DistanceX", -1, 1, 1, 2, 3.5))
sketch15.addConstraint(Sketcher.Constraint("DistanceY", 0, 2, 0, 1, 4.476079))
sketch15.addConstraint(Sketcher.Constraint("DistanceX", 1, 1, 1, 2, 6.694847))
sketch15.addConstraint(Sketcher.Constraint("DistanceY", 0, 2, -1, 1, 2.238039))
pad15 = body20.newObject("PartDesign::Pad", "Pad014")
pad15.Profile = sketch15
pad15.Length = 0.7
body21 = doc.addObject("PartDesign::Body", "Body020")

sketch16 = body21.newObject("Sketcher::SketchObject", "Sketch015")
sketch16.AttachmentSupport = (doc.getObject("XZ_Plane020"), [""])
sketch16.MapMode = "FlatFace"
sketch16.addGeometry(Part.LineSegment(V(-3.194847, 8.238039, 0), V(-3.194847, 3.761961, 0)), False)
sketch16.addGeometry(Part.LineSegment(V(-3.194847, 3.761961, 0), V(3.5, 3.761961, 0)), False)
sketch16.addGeometry(Part.LineSegment(V(3.5, 3.761961, 0), V(3.5, 8.238039, 0)), False)
sketch16.addGeometry(Part.LineSegment(V(3.5, 8.238039, 0), V(-3.194847, 8.238039, 0)), False)
sketch16.addConstraint(Sketcher.Constraint("Coincident", 0, 2, 1, 1))
sketch16.addConstraint(Sketcher.Constraint("Coincident", 1, 2, 2, 1))
sketch16.addConstraint(Sketcher.Constraint("Coincident", 2, 2, 3, 1))
sketch16.addConstraint(Sketcher.Constraint("Coincident", 3, 2, 0, 1))
sketch16.addConstraint(Sketcher.Constraint("Vertical", 0))
sketch16.addConstraint(Sketcher.Constraint("Horizontal", 1))
sketch16.addConstraint(Sketcher.Constraint("Vertical", 2))
sketch16.addConstraint(Sketcher.Constraint("Horizontal", 3))
sketch16.addConstraint(Sketcher.Constraint("DistanceX", -1, 1, 1, 2, 3.5))
sketch16.addConstraint(Sketcher.Constraint("DistanceY", 0, 2, 0, 1, 4.476079))
sketch16.addConstraint(Sketcher.Constraint("DistanceX", 1, 1, 1, 2, 6.694847))
sketch16.addConstraint(Sketcher.Constraint("DistanceY", -1, 1, 0, 2, 3.761961))
pad16 = body21.newObject("PartDesign::Pad", "Pad015")
pad16.Profile = sketch16
pad16.Length = 0.7
body22 = doc.addObject("PartDesign::Body", "Body021")

sketch17 = body22.newObject("Sketcher::SketchObject", "Sketch016")
sketch17.AttachmentSupport = (doc.getObject("XZ_Plane021"), [""])
sketch17.MapMode = "FlatFace"
sketch17.addGeometry(Part.LineSegment(V(5.5, 6.244444, 0), V(5.5, 4.644444, 0)), False)
sketch17.addGeometry(Part.LineSegment(V(5.5, 4.644444, 0), V(8.5, 4.644444, 0)), False)
sketch17.addGeometry(Part.LineSegment(V(8.5, 4.644444, 0), V(8.5, 6.244444, 0)), False)
sketch17.addGeometry(Part.LineSegment(V(8.5, 6.244444, 0), V(5.5, 6.244444, 0)), False)
sketch17.addConstraint(Sketcher.Constraint("Coincident", 0, 2, 1, 1))
sketch17.addConstraint(Sketcher.Constraint("Coincident", 1, 2, 2, 1))
sketch17.addConstraint(Sketcher.Constraint("Coincident", 2, 2, 3, 1))
sketch17.addConstraint(Sketcher.Constraint("Coincident", 3, 2, 0, 1))
sketch17.addConstraint(Sketcher.Constraint("Vertical", 0))
sketch17.addConstraint(Sketcher.Constraint("Horizontal", 1))
sketch17.addConstraint(Sketcher.Constraint("Vertical", 2))
sketch17.addConstraint(Sketcher.Constraint("Horizontal", 3))
sketch17.addConstraint(Sketcher.Constraint("DistanceX", 1, 1, 1, 2, 3.0))
sketch17.addConstraint(Sketcher.Constraint("DistanceY", 0, 2, 0, 1, 1.6))
sketch17.addConstraint(Sketcher.Constraint("DistanceX", -1, 1, 0, 2, 5.5))
sketch17.addConstraint(Sketcher.Constraint("DistanceY", -1, 1, 0, 2, 4.644444))
pad17 = body22.newObject("PartDesign::Pad", "Pad016")
pad17.Profile = sketch17
pad17.Length = 1.8
body23 = doc.addObject("PartDesign::Body", "Body022")

sketch18 = body23.newObject("Sketcher::SketchObject", "Sketch017")
sketch18.AttachmentSupport = (doc.getObject("XZ_Plane022"), [""])
sketch18.MapMode = "FlatFace"
sketch18.addGeometry(Part.LineSegment(V(5.5, 8.422222, 0), V(5.5, 6.822222, 0)), False)
sketch18.addGeometry(Part.LineSegment(V(5.5, 6.822222, 0), V(8.5, 6.822222, 0)), False)
sketch18.addGeometry(Part.LineSegment(V(8.5, 6.822222, 0), V(8.5, 8.422222, 0)), False)
sketch18.addGeometry(Part.LineSegment(V(8.5, 8.422222, 0), V(5.5, 8.422222, 0)), False)
sketch18.addConstraint(Sketcher.Constraint("Coincident", 0, 2, 1, 1))
sketch18.addConstraint(Sketcher.Constraint("Coincident", 1, 2, 2, 1))
sketch18.addConstraint(Sketcher.Constraint("Coincident", 2, 2, 3, 1))
sketch18.addConstraint(Sketcher.Constraint("Coincident", 3, 2, 0, 1))
sketch18.addConstraint(Sketcher.Constraint("Vertical", 0))
sketch18.addConstraint(Sketcher.Constraint("Horizontal", 1))
sketch18.addConstraint(Sketcher.Constraint("Vertical", 2))
sketch18.addConstraint(Sketcher.Constraint("Horizontal", 3))
sketch18.addConstraint(Sketcher.Constraint("DistanceX", 1, 1, 1, 2, 3.0))
sketch18.addConstraint(Sketcher.Constraint("DistanceY", 0, 2, 0, 1, 1.6))
sketch18.addConstraint(Sketcher.Constraint("DistanceX", -1, 1, 0, 2, 5.5))
sketch18.addConstraint(Sketcher.Constraint("DistanceY", -1, 1, 0, 2, 6.822222))
pad18 = body23.newObject("PartDesign::Pad", "Pad017")
pad18.Profile = sketch18
pad18.Length = 1.8
body24 = doc.addObject("PartDesign::Body", "Body023")

sketch19 = body24.newObject("Sketcher::SketchObject", "Sketch018")
sketch19.AttachmentSupport = (doc.getObject("XZ_Plane023"), [""])
sketch19.MapMode = "FlatFace"
sketch19.addGeometry(Part.LineSegment(V(5.5, 4.066667, 0), V(5.5, 2.466667, 0)), False)
sketch19.addGeometry(Part.LineSegment(V(5.5, 2.466667, 0), V(8.5, 2.466667, 0)), False)
sketch19.addGeometry(Part.LineSegment(V(8.5, 2.466667, 0), V(8.5, 4.066667, 0)), False)
sketch19.addGeometry(Part.LineSegment(V(8.5, 4.066667, 0), V(5.5, 4.066667, 0)), False)
sketch19.addConstraint(Sketcher.Constraint("Coincident", 0, 2, 1, 1))
sketch19.addConstraint(Sketcher.Constraint("Coincident", 1, 2, 2, 1))
sketch19.addConstraint(Sketcher.Constraint("Coincident", 2, 2, 3, 1))
sketch19.addConstraint(Sketcher.Constraint("Coincident", 3, 2, 0, 1))
sketch19.addConstraint(Sketcher.Constraint("Vertical", 0))
sketch19.addConstraint(Sketcher.Constraint("Horizontal", 1))
sketch19.addConstraint(Sketcher.Constraint("Vertical", 2))
sketch19.addConstraint(Sketcher.Constraint("Horizontal", 3))
sketch19.addConstraint(Sketcher.Constraint("DistanceX", 1, 1, 1, 2, 3.0))
sketch19.addConstraint(Sketcher.Constraint("DistanceY", 0, 2, 0, 1, 1.6))
sketch19.addConstraint(Sketcher.Constraint("DistanceX", -1, 1, 0, 2, 5.5))
sketch19.addConstraint(Sketcher.Constraint("DistanceY", -1, 1, 0, 2, 2.466667))
pad19 = body24.newObject("PartDesign::Pad", "Pad018")
pad19.Profile = sketch19
pad19.Length = 1.8
body25 = doc.addObject("PartDesign::Body", "Body024")

sketch20 = body25.newObject("Sketcher::SketchObject", "Sketch019")
sketch20.AttachmentSupport = (doc.getObject("XZ_Plane024"), [""])
sketch20.MapMode = "FlatFace"
sketch20.addGeometry(Part.LineSegment(V(5.5, 1.888889, 0), V(5.5, 0.288889, 0)), False)
sketch20.addGeometry(Part.LineSegment(V(5.5, 0.288889, 0), V(8.5, 0.288889, 0)), False)
sketch20.addGeometry(Part.LineSegment(V(8.5, 0.288889, 0), V(8.5, 1.888889, 0)), False)
sketch20.addGeometry(Part.LineSegment(V(8.5, 1.888889, 0), V(5.5, 1.888889, 0)), False)
sketch20.addConstraint(Sketcher.Constraint("Coincident", 0, 2, 1, 1))
sketch20.addConstraint(Sketcher.Constraint("Coincident", 1, 2, 2, 1))
sketch20.addConstraint(Sketcher.Constraint("Coincident", 2, 2, 3, 1))
sketch20.addConstraint(Sketcher.Constraint("Coincident", 3, 2, 0, 1))
sketch20.addConstraint(Sketcher.Constraint("Vertical", 0))
sketch20.addConstraint(Sketcher.Constraint("Horizontal", 1))
sketch20.addConstraint(Sketcher.Constraint("Vertical", 2))
sketch20.addConstraint(Sketcher.Constraint("Horizontal", 3))
sketch20.addConstraint(Sketcher.Constraint("DistanceX", 1, 1, 1, 2, 3.0))
sketch20.addConstraint(Sketcher.Constraint("DistanceY", 0, 2, 0, 1, 1.6))
sketch20.addConstraint(Sketcher.Constraint("DistanceX", -1, 1, 0, 2, 5.5))
sketch20.addConstraint(Sketcher.Constraint("DistanceY", -1, 1, 0, 2, 0.288889))
pad20 = body25.newObject("PartDesign::Pad", "Pad019")
pad20.Profile = sketch20
pad20.Length = 1.8
body26 = doc.addObject("PartDesign::Body", "Body025")

sketch21 = body26.newObject("Sketcher::SketchObject", "Sketch020")
sketch21.AttachmentSupport = (doc.getObject("XZ_Plane025"), [""])
sketch21.MapMode = "FlatFace"
sketch21.addGeometry(Part.LineSegment(V(5.5, -0.288889, 0), V(5.5, -1.888889, 0)), False)
sketch21.addGeometry(Part.LineSegment(V(5.5, -1.888889, 0), V(8.5, -1.888889, 0)), False)
sketch21.addGeometry(Part.LineSegment(V(8.5, -1.888889, 0), V(8.5, -0.288889, 0)), False)
sketch21.addGeometry(Part.LineSegment(V(8.5, -0.288889, 0), V(5.5, -0.288889, 0)), False)
sketch21.addConstraint(Sketcher.Constraint("Coincident", 0, 2, 1, 1))
sketch21.addConstraint(Sketcher.Constraint("Coincident", 1, 2, 2, 1))
sketch21.addConstraint(Sketcher.Constraint("Coincident", 2, 2, 3, 1))
sketch21.addConstraint(Sketcher.Constraint("Coincident", 3, 2, 0, 1))
sketch21.addConstraint(Sketcher.Constraint("Vertical", 0))
sketch21.addConstraint(Sketcher.Constraint("Horizontal", 1))
sketch21.addConstraint(Sketcher.Constraint("Vertical", 2))
sketch21.addConstraint(Sketcher.Constraint("Horizontal", 3))
sketch21.addConstraint(Sketcher.Constraint("DistanceX", 1, 1, 1, 2, 3.0))
sketch21.addConstraint(Sketcher.Constraint("DistanceY", 0, 2, 0, 1, 1.6))
sketch21.addConstraint(Sketcher.Constraint("DistanceX", -1, 1, 0, 2, 5.5))
sketch21.addConstraint(Sketcher.Constraint("DistanceY", 0, 2, -1, 1, 1.888889))
pad21 = body26.newObject("PartDesign::Pad", "Pad020")
pad21.Profile = sketch21
pad21.Length = 1.8
body27 = doc.addObject("PartDesign::Body", "Body026")

sketch22 = body27.newObject("Sketcher::SketchObject", "Sketch021")
sketch22.AttachmentSupport = (doc.getObject("XZ_Plane026"), [""])
sketch22.MapMode = "FlatFace"
sketch22.addGeometry(Part.LineSegment(V(5.5, -2.466667, 0), V(5.5, -4.066667, 0)), False)
sketch22.addGeometry(Part.LineSegment(V(5.5, -4.066667, 0), V(8.5, -4.066667, 0)), False)
sketch22.addGeometry(Part.LineSegment(V(8.5, -4.066667, 0), V(8.5, -2.466667, 0)), False)
sketch22.addGeometry(Part.LineSegment(V(8.5, -2.466667, 0), V(5.5, -2.466667, 0)), False)
sketch22.addConstraint(Sketcher.Constraint("Coincident", 0, 2, 1, 1))
sketch22.addConstraint(Sketcher.Constraint("Coincident", 1, 2, 2, 1))
sketch22.addConstraint(Sketcher.Constraint("Coincident", 2, 2, 3, 1))
sketch22.addConstraint(Sketcher.Constraint("Coincident", 3, 2, 0, 1))
sketch22.addConstraint(Sketcher.Constraint("Vertical", 0))
sketch22.addConstraint(Sketcher.Constraint("Horizontal", 1))
sketch22.addConstraint(Sketcher.Constraint("Vertical", 2))
sketch22.addConstraint(Sketcher.Constraint("Horizontal", 3))
sketch22.addConstraint(Sketcher.Constraint("DistanceX", 1, 1, 1, 2, 3.0))
sketch22.addConstraint(Sketcher.Constraint("DistanceY", 0, 2, 0, 1, 1.6))
sketch22.addConstraint(Sketcher.Constraint("DistanceX", -1, 1, 0, 2, 5.5))
sketch22.addConstraint(Sketcher.Constraint("DistanceY", 0, 2, -1, 1, 4.066667))
pad22 = body27.newObject("PartDesign::Pad", "Pad021")
pad22.Profile = sketch22
pad22.Length = 1.8
body28 = doc.addObject("PartDesign::Body", "Body027")

sketch23 = body28.newObject("Sketcher::SketchObject", "Sketch022")
sketch23.AttachmentSupport = (doc.getObject("XZ_Plane027"), [""])
sketch23.MapMode = "FlatFace"
sketch23.addGeometry(Part.LineSegment(V(5.5, -4.644444, 0), V(5.5, -6.244444, 0)), False)
sketch23.addGeometry(Part.LineSegment(V(5.5, -6.244444, 0), V(8.5, -6.244444, 0)), False)
sketch23.addGeometry(Part.LineSegment(V(8.5, -6.244444, 0), V(8.5, -4.644444, 0)), False)
sketch23.addGeometry(Part.LineSegment(V(8.5, -4.644444, 0), V(5.5, -4.644444, 0)), False)
sketch23.addConstraint(Sketcher.Constraint("Coincident", 0, 2, 1, 1))
sketch23.addConstraint(Sketcher.Constraint("Coincident", 1, 2, 2, 1))
sketch23.addConstraint(Sketcher.Constraint("Coincident", 2, 2, 3, 1))
sketch23.addConstraint(Sketcher.Constraint("Coincident", 3, 2, 0, 1))
sketch23.addConstraint(Sketcher.Constraint("Vertical", 0))
sketch23.addConstraint(Sketcher.Constraint("Horizontal", 1))
sketch23.addConstraint(Sketcher.Constraint("Vertical", 2))
sketch23.addConstraint(Sketcher.Constraint("Horizontal", 3))
sketch23.addConstraint(Sketcher.Constraint("DistanceX", 1, 1, 1, 2, 3.0))
sketch23.addConstraint(Sketcher.Constraint("DistanceY", 0, 2, 0, 1, 1.6))
sketch23.addConstraint(Sketcher.Constraint("DistanceX", -1, 1, 0, 2, 5.5))
sketch23.addConstraint(Sketcher.Constraint("DistanceY", 0, 2, -1, 1, 6.244444))
pad23 = body28.newObject("PartDesign::Pad", "Pad022")
pad23.Profile = sketch23
pad23.Length = 1.8
body29 = doc.addObject("PartDesign::Body", "Body028")

sketch24 = body29.newObject("Sketcher::SketchObject", "Sketch023")
sketch24.AttachmentSupport = (doc.getObject("XZ_Plane028"), [""])
sketch24.MapMode = "FlatFace"
sketch24.addGeometry(Part.LineSegment(V(5.5, -6.822222, 0), V(5.5, -8.422222, 0)), False)
sketch24.addGeometry(Part.LineSegment(V(5.5, -8.422222, 0), V(8.5, -8.422222, 0)), False)
sketch24.addGeometry(Part.LineSegment(V(8.5, -8.422222, 0), V(8.5, -6.822222, 0)), False)
sketch24.addGeometry(Part.LineSegment(V(8.5, -6.822222, 0), V(5.5, -6.822222, 0)), False)
sketch24.addConstraint(Sketcher.Constraint("Coincident", 0, 2, 1, 1))
sketch24.addConstraint(Sketcher.Constraint("Coincident", 1, 2, 2, 1))
sketch24.addConstraint(Sketcher.Constraint("Coincident", 2, 2, 3, 1))
sketch24.addConstraint(Sketcher.Constraint("Coincident", 3, 2, 0, 1))
sketch24.addConstraint(Sketcher.Constraint("Vertical", 0))
sketch24.addConstraint(Sketcher.Constraint("Horizontal", 1))
sketch24.addConstraint(Sketcher.Constraint("Vertical", 2))
sketch24.addConstraint(Sketcher.Constraint("Horizontal", 3))
sketch24.addConstraint(Sketcher.Constraint("DistanceX", 1, 1, 1, 2, 3.0))
sketch24.addConstraint(Sketcher.Constraint("DistanceY", 0, 2, 0, 1, 1.6))
sketch24.addConstraint(Sketcher.Constraint("DistanceX", -1, 1, 0, 2, 5.5))
sketch24.addConstraint(Sketcher.Constraint("DistanceY", 0, 2, -1, 1, 8.422222))
pad24 = body29.newObject("PartDesign::Pad", "Pad023")
pad24.Profile = sketch24
pad24.Length = 1.8
body30 = doc.addObject("PartDesign::Body", "Body029")

sketch25 = body30.newObject("Sketcher::SketchObject", "Sketch024")
sketch25.AttachmentSupport = (doc.getObject("XZ_Plane029"), [""])
sketch25.MapMode = "FlatFace"
sketch25.addGeometry(Part.LineSegment(V(15.5, 0.6, 0), V(15.5, -0.6, 0)), False)
sketch25.addGeometry(Part.LineSegment(V(15.5, -0.6, 0), V(17.5, -0.6, 0)), False)
sketch25.addGeometry(Part.LineSegment(V(17.5, -0.6, 0), V(17.5, 0.6, 0)), False)
sketch25.addGeometry(Part.LineSegment(V(17.5, 0.6, 0), V(15.5, 0.6, 0)), False)
sketch25.addConstraint(Sketcher.Constraint("Coincident", 0, 2, 1, 1))
sketch25.addConstraint(Sketcher.Constraint("Coincident", 1, 2, 2, 1))
sketch25.addConstraint(Sketcher.Constraint("Coincident", 2, 2, 3, 1))
sketch25.addConstraint(Sketcher.Constraint("Coincident", 3, 2, 0, 1))
sketch25.addConstraint(Sketcher.Constraint("Vertical", 0))
sketch25.addConstraint(Sketcher.Constraint("Horizontal", 1))
sketch25.addConstraint(Sketcher.Constraint("Vertical", 2))
sketch25.addConstraint(Sketcher.Constraint("Horizontal", 3))
sketch25.addConstraint(Sketcher.Constraint("DistanceX", 1, 1, 1, 2, 2.0))
sketch25.addConstraint(Sketcher.Constraint("DistanceY", 0, 2, 0, 1, 1.2))
sketch25.addConstraint(Sketcher.Constraint("DistanceX", -1, 1, 0, 2, 15.5))
sketch25.addConstraint(Sketcher.Constraint("DistanceY", 0, 2, -1, 1, 0.6))
pad25 = body30.newObject("PartDesign::Pad", "Pad024")
pad25.Profile = sketch25
pad25.Length = 0.1
body31 = doc.addObject("PartDesign::Body", "Body030")

sketch26 = body31.newObject("Sketcher::SketchObject", "Sketch025")
sketch26.AttachmentSupport = (doc.getObject("XZ_Plane030"), [""])
sketch26.MapMode = "FlatFace"
sketch26.addGeometry(Part.LineSegment(V(15.5, 3.1, 0), V(15.5, 1.9, 0)), False)
sketch26.addGeometry(Part.LineSegment(V(15.5, 1.9, 0), V(17.5, 1.9, 0)), False)
sketch26.addGeometry(Part.LineSegment(V(17.5, 1.9, 0), V(17.5, 3.1, 0)), False)
sketch26.addGeometry(Part.LineSegment(V(17.5, 3.1, 0), V(15.5, 3.1, 0)), False)
sketch26.addConstraint(Sketcher.Constraint("Coincident", 0, 2, 1, 1))
sketch26.addConstraint(Sketcher.Constraint("Coincident", 1, 2, 2, 1))
sketch26.addConstraint(Sketcher.Constraint("Coincident", 2, 2, 3, 1))
sketch26.addConstraint(Sketcher.Constraint("Coincident", 3, 2, 0, 1))
sketch26.addConstraint(Sketcher.Constraint("Vertical", 0))
sketch26.addConstraint(Sketcher.Constraint("Horizontal", 1))
sketch26.addConstraint(Sketcher.Constraint("Vertical", 2))
sketch26.addConstraint(Sketcher.Constraint("Horizontal", 3))
sketch26.addConstraint(Sketcher.Constraint("DistanceX", 1, 1, 1, 2, 2.0))
sketch26.addConstraint(Sketcher.Constraint("DistanceY", 0, 2, 0, 1, 1.2))
sketch26.addConstraint(Sketcher.Constraint("DistanceX", -1, 1, 0, 2, 15.5))
sketch26.addConstraint(Sketcher.Constraint("DistanceY", -1, 1, 0, 2, 1.9))
pad26 = body31.newObject("PartDesign::Pad", "Pad025")
pad26.Profile = sketch26
pad26.Length = 0.1
body32 = doc.addObject("PartDesign::Body", "Body031")

sketch27 = body32.newObject("Sketcher::SketchObject", "Sketch026")
sketch27.AttachmentSupport = (doc.getObject("XZ_Plane031"), [""])
sketch27.MapMode = "FlatFace"
sketch27.addGeometry(Part.LineSegment(V(15.5, -1.9, 0), V(15.5, -3.1, 0)), False)
sketch27.addGeometry(Part.LineSegment(V(15.5, -3.1, 0), V(17.5, -3.1, 0)), False)
sketch27.addGeometry(Part.LineSegment(V(17.5, -3.1, 0), V(17.5, -1.9, 0)), False)
sketch27.addGeometry(Part.LineSegment(V(17.5, -1.9, 0), V(15.5, -1.9, 0)), False)
sketch27.addConstraint(Sketcher.Constraint("Coincident", 0, 2, 1, 1))
sketch27.addConstraint(Sketcher.Constraint("Coincident", 1, 2, 2, 1))
sketch27.addConstraint(Sketcher.Constraint("Coincident", 2, 2, 3, 1))
sketch27.addConstraint(Sketcher.Constraint("Coincident", 3, 2, 0, 1))
sketch27.addConstraint(Sketcher.Constraint("Vertical", 0))
sketch27.addConstraint(Sketcher.Constraint("Horizontal", 1))
sketch27.addConstraint(Sketcher.Constraint("Vertical", 2))
sketch27.addConstraint(Sketcher.Constraint("Horizontal", 3))
sketch27.addConstraint(Sketcher.Constraint("DistanceX", 1, 1, 1, 2, 2.0))
sketch27.addConstraint(Sketcher.Constraint("DistanceY", 0, 2, 0, 1, 1.2))
sketch27.addConstraint(Sketcher.Constraint("DistanceX", -1, 1, 0, 2, 15.5))
sketch27.addConstraint(Sketcher.Constraint("DistanceY", 0, 2, -1, 1, 3.1))
pad27 = body32.newObject("PartDesign::Pad", "Pad026")
pad27.Profile = sketch27
pad27.Length = 0.1
body33 = doc.addObject("PartDesign::Body", "Body032")

sketch28 = body33.newObject("Sketcher::SketchObject", "Sketch027")
sketch28.AttachmentSupport = (doc.getObject("XZ_Plane032"), [""])
sketch28.MapMode = "FlatFace"
sketch28.addGeometry(Part.LineSegment(V(11.5, 1, 0), V(11.5, -1, 0)), False)
sketch28.addGeometry(Part.LineSegment(V(11.5, -1, 0), V(13.5, -1, 0)), False)
sketch28.addGeometry(Part.LineSegment(V(13.5, -1, 0), V(13.5, 1, 0)), False)
sketch28.addGeometry(Part.LineSegment(V(13.5, 1, 0), V(11.5, 1, 0)), False)
sketch28.addConstraint(Sketcher.Constraint("Coincident", 0, 2, 1, 1))
sketch28.addConstraint(Sketcher.Constraint("Coincident", 1, 2, 2, 1))
sketch28.addConstraint(Sketcher.Constraint("Coincident", 2, 2, 3, 1))
sketch28.addConstraint(Sketcher.Constraint("Coincident", 3, 2, 0, 1))
sketch28.addConstraint(Sketcher.Constraint("Vertical", 0))
sketch28.addConstraint(Sketcher.Constraint("Horizontal", 1))
sketch28.addConstraint(Sketcher.Constraint("Vertical", 2))
sketch28.addConstraint(Sketcher.Constraint("Horizontal", 3))
sketch28.addConstraint(Sketcher.Constraint("Equal", 3, 0))
sketch28.addConstraint(Sketcher.Constraint("DistanceX", 1, 1, 1, 2, 2.0))
sketch28.addConstraint(Sketcher.Constraint("DistanceY", 0, 2, -1, 1, 1.0))
sketch28.addConstraint(Sketcher.Constraint("DistanceX", -1, 1, 0, 2, 11.5))
pad28 = body33.newObject("PartDesign::Pad", "Pad027")
pad28.Profile = sketch28
pad28.Length = 1

doc.recompute()
